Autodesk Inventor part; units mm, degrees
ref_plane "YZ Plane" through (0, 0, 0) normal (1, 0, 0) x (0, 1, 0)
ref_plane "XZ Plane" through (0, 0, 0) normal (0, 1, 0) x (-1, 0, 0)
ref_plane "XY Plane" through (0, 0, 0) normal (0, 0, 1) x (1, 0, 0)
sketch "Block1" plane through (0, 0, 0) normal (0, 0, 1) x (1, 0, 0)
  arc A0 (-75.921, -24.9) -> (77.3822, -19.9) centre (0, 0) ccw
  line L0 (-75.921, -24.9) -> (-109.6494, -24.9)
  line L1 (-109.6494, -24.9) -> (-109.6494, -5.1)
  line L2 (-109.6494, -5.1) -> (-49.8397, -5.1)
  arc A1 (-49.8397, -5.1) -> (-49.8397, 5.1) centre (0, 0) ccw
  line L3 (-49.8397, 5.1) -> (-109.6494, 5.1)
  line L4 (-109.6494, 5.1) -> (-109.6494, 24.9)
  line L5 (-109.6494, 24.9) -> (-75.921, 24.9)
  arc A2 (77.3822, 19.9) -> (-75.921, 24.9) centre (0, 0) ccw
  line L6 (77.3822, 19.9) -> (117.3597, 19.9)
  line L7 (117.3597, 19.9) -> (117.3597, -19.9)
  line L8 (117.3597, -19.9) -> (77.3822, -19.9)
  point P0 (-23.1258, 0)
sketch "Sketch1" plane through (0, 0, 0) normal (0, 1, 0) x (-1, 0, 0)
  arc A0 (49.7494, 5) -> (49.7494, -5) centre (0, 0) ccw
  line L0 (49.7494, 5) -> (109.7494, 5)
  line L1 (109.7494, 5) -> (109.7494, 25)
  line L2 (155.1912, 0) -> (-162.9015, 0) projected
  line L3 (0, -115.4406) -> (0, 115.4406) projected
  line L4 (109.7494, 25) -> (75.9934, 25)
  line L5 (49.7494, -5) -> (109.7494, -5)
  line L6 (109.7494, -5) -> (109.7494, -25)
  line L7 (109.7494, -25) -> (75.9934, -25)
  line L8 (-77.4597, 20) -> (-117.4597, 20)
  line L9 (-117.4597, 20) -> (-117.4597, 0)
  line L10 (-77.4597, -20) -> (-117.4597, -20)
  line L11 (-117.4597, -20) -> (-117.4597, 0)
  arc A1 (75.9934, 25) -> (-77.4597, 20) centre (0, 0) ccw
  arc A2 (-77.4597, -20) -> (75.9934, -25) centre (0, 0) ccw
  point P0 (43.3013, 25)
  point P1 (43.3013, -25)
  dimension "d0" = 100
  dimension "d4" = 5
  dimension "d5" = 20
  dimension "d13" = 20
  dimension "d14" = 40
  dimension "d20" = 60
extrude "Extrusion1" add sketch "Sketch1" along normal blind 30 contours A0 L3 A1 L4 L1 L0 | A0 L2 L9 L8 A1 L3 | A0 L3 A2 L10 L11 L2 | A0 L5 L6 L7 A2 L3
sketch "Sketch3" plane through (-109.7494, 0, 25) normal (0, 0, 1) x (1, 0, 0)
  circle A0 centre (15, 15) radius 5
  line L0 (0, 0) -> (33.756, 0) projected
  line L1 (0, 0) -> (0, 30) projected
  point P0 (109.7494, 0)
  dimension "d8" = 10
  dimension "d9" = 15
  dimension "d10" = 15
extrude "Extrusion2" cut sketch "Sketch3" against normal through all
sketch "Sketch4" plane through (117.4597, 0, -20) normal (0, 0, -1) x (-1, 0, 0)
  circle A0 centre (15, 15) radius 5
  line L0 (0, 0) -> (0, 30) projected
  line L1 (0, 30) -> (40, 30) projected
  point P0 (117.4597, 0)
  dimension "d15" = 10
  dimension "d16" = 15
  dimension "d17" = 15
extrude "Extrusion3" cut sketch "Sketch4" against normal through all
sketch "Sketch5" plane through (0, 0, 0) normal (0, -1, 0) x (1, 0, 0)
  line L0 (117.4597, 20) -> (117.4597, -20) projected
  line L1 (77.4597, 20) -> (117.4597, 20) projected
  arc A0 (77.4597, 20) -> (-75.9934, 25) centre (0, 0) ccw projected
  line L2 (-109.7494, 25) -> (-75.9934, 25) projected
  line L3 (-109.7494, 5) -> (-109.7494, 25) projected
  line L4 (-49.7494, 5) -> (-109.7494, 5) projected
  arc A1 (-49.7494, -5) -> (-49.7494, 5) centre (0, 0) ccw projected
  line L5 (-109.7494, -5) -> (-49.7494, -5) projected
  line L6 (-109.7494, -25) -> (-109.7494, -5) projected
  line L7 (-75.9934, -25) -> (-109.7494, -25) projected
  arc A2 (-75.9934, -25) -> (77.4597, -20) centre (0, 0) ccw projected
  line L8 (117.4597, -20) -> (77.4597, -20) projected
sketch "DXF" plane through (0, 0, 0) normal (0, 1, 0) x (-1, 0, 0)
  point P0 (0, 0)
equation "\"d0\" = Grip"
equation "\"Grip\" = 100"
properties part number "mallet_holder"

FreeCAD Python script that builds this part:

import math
import FreeCAD as App
import Part
import Sketcher
from FreeCAD import Vector

doc = App.newDocument("Part")
body = doc.addObject("PartDesign::Body", "Body")

sketch1 = body.newObject("Sketcher::SketchObject", "Sketch")
sketch1.AttachmentSupport = (doc.getObject("XZ_Plane"), [""])
sketch1.MapMode = "FlatFace"
sketch1.addGeometry([
    Part.LineSegment(Vector(-50, 5, 0), Vector(-110, 5, 0)),
    Part.LineSegment(Vector(-110, 5, 0), Vector(-110, 25, 0)),
    Part.LineSegment(Vector(-110, 25, 0), Vector(-76, 25, 0)),
    Part.ArcOfCircle(Part.Circle(Vector(0, 0, 0), Vector(0, 0, 1), 80), math.radians(14), math.radians(162)),
    Part.LineSegment(Vector(77, 20, 0), Vector(117, 20, 0)),
    Part.LineSegment(Vector(117, 20, 0), Vector(117, -20, 0)),
    Part.LineSegment(Vector(117, -20, 0), Vector(77, -20, 0)),
    Part.ArcOfCircle(Part.Circle(Vector(0, 0, 0), Vector(0, 0, 1), 80), math.radians(-162), math.radians(-14)),
    Part.LineSegment(Vector(-76, -25, 0), Vector(-110, -25, 0)),
    Part.LineSegment(Vector(-110, -25, 0), Vector(-110, -5, 0)),
    Part.LineSegment(Vector(-110, -5, 0), Vector(-50, -5, 0)),
    Part.ArcOfCircle(Part.Circle(Vector(0, 0, 0), Vector(0, 0, 1), 50), math.radians(-174), math.radians(174)),
], False)
sketch1.addConstraint([
    Sketcher.Constraint("Coincident", 0, 2, 1, 1),
    Sketcher.Constraint("Coincident", 1, 2, 2, 1),
    Sketcher.Constraint("Coincident", 2, 2, 3, 2),
    Sketcher.Constraint("Coincident", 3, 1, 4, 1),
    Sketcher.Constraint("Coincident", 4, 2, 5, 1),
    Sketcher.Constraint("Coincident", 5, 2, 6, 1),
    Sketcher.Constraint("Coincident", 6, 2, 7, 2),
    Sketcher.Constraint("Coincident", 7, 1, 8, 1),
    Sketcher.Constraint("Coincident", 8, 2, 9, 1),
    Sketcher.Constraint("Coincident", 9, 2, 10, 1),
    Sketcher.Constraint("Coincident", 10, 2, 11, 1),
    Sketcher.Constraint("Coincident", 11, 2, 0, 1),
    Sketcher.Constraint("Horizontal", 0),
    Sketcher.Constraint("Vertical", 1),
    Sketcher.Constraint("Horizontal", 2),
    Sketcher.Constraint("Horizontal", 4),
    Sketcher.Constraint("Vertical", 5),
    Sketcher.Constraint("Horizontal", 6),
    Sketcher.Constraint("Horizontal", 8),
    Sketcher.Constraint("Vertical", 9),
    Sketcher.Constraint("Horizontal", 10),
    Sketcher.Constraint("Coincident", 3, 3, -1, 1),
    Sketcher.Constraint("Coincident", 7, 3, -1, 1),
    Sketcher.Constraint("Coincident", 11, 3, -1, 1),
    Sketcher.Constraint("Equal", 3, 7),
    Sketcher.Constraint("Symmetric", 1, 2, 8, 2, -1),
    Sketcher.Constraint("Vertical", 3, 1, 6, 2),
    Sketcher.Constraint("Vertical", 10, 2, 11, 2),
    Sketcher.Constraint("Equal", 6, 5),
    Sketcher.Constraint("Radius", 11, 50.0),
    Sketcher.Constraint("DistanceX", 0, 2, 0, 1, 60.0),
    Sketcher.Constraint("DistanceX", 4, 1, 4, 2, 40.0),
    Sketcher.Constraint("DistanceY", 1, 1, 1, 2, 20.0),
    Sketcher.Constraint("DistanceY", -1, 1, 0, 2, 5.0),
    Sketcher.Constraint("Radius", 3, 80.0),
])
pad1 = body.newObject("PartDesign::Pad", "Pad")
pad1.Profile = sketch1
pad1.Length = 30
pad1.Reversed = True

sketch2 = body.newObject("Sketcher::SketchObject", "Sketch001")
sketch2.AttachmentSupport = (doc.getObject("XY_Plane"), [""])
sketch2.MapMode = "FlatFace"
sketch2.AttachmentOffset = App.Placement(Vector(0, 0, 25), App.Rotation())
sketch2.addGeometry(Part.Circle(Vector(-95, 15, 0), Vector(0, 0, 1), 5), False)
sketch2.addConstraint([
    Sketcher.Constraint("Diameter", 0, 10.0),
    Sketcher.Constraint("DistanceY", -1, 1, 0, 3, 15.0),
    Sketcher.Constraint("DistanceX", 0, 3, -1, 1, 94.7494),
])
pocket1 = body.newObject("PartDesign::Pocket", "Pocket")
pocket1.Profile = sketch2
pocket1.Type = "ThroughAll"

sketch3 = body.newObject("Sketcher::SketchObject", "Sketch002")
sketch3.AttachmentSupport = (doc.getObject("XY_Plane"), [""])
sketch3.MapMode = "FlatFace"
sketch3.AttachmentOffset = App.Placement(Vector(0, 0, -20), App.Rotation())
sketch3.addGeometry(Part.Circle(Vector(102, 15, 0), Vector(0, 0, 1), 5), False)
sketch3.addConstraint([
    Sketcher.Constraint("Diameter", 0, 10.0),
    Sketcher.Constraint("DistanceY", -1, 1, 0, 3, 15.0),
    Sketcher.Constraint("DistanceX", -1, 1, 0, 3, 102.4597),
])
pocket2 = body.newObject("PartDesign::Pocket", "Pocket001")
pocket2.Profile = sketch3
pocket2.Type = "ThroughAll"
pocket2.Reversed = True

doc.recompute()
